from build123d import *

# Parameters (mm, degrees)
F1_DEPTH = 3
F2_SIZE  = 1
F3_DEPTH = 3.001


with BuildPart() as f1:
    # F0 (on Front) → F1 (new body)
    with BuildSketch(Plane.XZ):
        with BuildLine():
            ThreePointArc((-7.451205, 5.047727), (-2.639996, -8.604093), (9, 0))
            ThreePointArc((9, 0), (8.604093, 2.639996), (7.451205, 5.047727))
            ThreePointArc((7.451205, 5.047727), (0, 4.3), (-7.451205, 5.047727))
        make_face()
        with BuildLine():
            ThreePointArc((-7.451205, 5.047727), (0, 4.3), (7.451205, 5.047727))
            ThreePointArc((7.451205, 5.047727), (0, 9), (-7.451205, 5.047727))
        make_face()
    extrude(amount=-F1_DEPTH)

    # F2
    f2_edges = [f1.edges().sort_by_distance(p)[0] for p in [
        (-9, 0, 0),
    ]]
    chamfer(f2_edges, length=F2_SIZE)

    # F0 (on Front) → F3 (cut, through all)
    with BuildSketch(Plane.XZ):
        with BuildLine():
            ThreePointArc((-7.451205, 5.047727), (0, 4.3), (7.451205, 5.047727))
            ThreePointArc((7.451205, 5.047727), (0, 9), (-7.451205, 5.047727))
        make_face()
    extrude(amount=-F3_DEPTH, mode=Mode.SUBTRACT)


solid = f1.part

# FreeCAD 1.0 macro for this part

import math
import FreeCAD as App
import Part
import Sketcher

V = App.Vector


def edges_at(feature, points):
    """Names of the edges that pass closest to the given points."""
    edges = feature.Shape.Edges
    near = lambda p: min(range(len(edges)), key=lambda i: edges[i].distToShape(Part.Vertex(*p))[0])
    return sorted({f"Edge{near(p) + 1}" for p in points})

doc = App.newDocument("Part")
body = doc.addObject("PartDesign::Body", "Body")

# Sketch on XZ plane
sketch1 = doc.addObject("Sketcher::SketchObject", "Sketch")
body.addObject(sketch1)
sketch1.AttachmentSupport = (doc.XZ_Plane, [""])
sketch1.MapMode = "FlatFace"
sketch1.addGeometry([
    Part.ArcOfCircle(Part.Circle(V(0, 0, 0), V(0, 0, 1), 9), math.radians(145.884809), math.radians(359.999998)),
    Part.ArcOfCircle(Part.Circle(V(-0.000008, -0.000002, 0), V(0, 0, 1), 9.000008), math.radians(0.000014), math.radians(34.115175)),
    Part.ArcOfCircle(Part.Circle(V(0, 0, 0), V(0, 0, 1), 9), math.radians(34.115195), math.radians(145.884805)),
], False)
sketch1.addConstraint([
    Sketcher.Constraint("Tangent", 0, 2, 1, 1),
    Sketcher.Constraint("Tangent", 1, 2, 2, 1),
    Sketcher.Constraint("Tangent", 2, 2, 0, 1),
    Sketcher.Constraint("Coincident", 0, 3, -1, 1),
    Sketcher.Constraint("PointOnObject", 0, 2, -1),
    Sketcher.Constraint("Horizontal", 1, 2, 2, 2),
    Sketcher.Constraint("Radius", 0, 9.0),
    Sketcher.Constraint("DistanceY", 1, 3, 1, 2, 5.047729),
])
pad1 = doc.addObject("PartDesign::Pad", "Pad")
body.addObject(pad1)
pad1.Profile = sketch1
pad1.Length = 3
pad1.Reversed = True
doc.recompute()

chamfer = doc.addObject("PartDesign::Chamfer", "Chamfer")
body.addObject(chamfer)
chamfer.Base = (pad1, edges_at(pad1, [(-2.64, 0, -8.604)]))
chamfer.Size = 1

# Sketch on XZ plane
sketch2 = doc.addObject("Sketcher::SketchObject", "Sketch001")
body.addObject(sketch2)
sketch2.AttachmentSupport = (doc.XZ_Plane, [""])
sketch2.MapMode = "FlatFace"
sketch2.addGeometry([
    Part.ArcOfCircle(Part.Circle(V(0, 41.800018, 0), V(0, 0, 1), 37.500018), math.radians(-101.460873), math.radians(-78.539127)),
    Part.ArcOfCircle(Part.Circle(V(0, 0, 0), V(0, 0, 1), 9), math.radians(34.115195), math.radians(145.884805)),
], False)
sketch2.addConstraint([
    Sketcher.Constraint("Coincident", 0, 1, 1, 2),
    Sketcher.Constraint("Coincident", 1, 1, 0, 2),
    Sketcher.Constraint("Coincident", 1, 3, -1, 1),
    Sketcher.Constraint("PointOnObject", 0, 3, -2),
    Sketcher.Constraint("Radius", 1, 9.0),
    Sketcher.Constraint("Radius", 0, 37.500018),
    Sketcher.Constraint("DistanceY", 1, 3, 0, 3, 41.800018),
])
pocket1 = doc.addObject("PartDesign::Pocket", "Pocket")
body.addObject(pocket1)
pocket1.Profile = sketch2
pocket1.Type = "ThroughAll"

doc.recompute()
